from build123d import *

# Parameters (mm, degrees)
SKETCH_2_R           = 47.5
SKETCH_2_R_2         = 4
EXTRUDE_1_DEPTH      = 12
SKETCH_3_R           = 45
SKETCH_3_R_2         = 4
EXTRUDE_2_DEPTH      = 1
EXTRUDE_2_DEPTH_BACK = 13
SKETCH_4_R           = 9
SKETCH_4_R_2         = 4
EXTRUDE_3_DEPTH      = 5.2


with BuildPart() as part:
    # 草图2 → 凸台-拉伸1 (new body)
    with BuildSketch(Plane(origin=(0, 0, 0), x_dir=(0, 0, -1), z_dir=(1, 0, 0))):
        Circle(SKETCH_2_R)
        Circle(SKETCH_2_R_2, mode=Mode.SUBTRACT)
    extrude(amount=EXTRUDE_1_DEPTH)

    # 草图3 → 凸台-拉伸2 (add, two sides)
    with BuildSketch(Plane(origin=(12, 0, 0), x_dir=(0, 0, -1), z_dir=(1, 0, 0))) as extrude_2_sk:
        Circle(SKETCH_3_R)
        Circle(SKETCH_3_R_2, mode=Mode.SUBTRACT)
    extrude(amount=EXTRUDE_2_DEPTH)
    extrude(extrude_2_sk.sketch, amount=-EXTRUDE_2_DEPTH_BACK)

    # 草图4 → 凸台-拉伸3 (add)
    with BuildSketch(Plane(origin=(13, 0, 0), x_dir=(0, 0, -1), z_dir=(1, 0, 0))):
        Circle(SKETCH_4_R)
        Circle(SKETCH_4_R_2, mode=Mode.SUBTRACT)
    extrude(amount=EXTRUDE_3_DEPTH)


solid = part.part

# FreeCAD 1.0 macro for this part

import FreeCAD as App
import Part
import Sketcher
from FreeCAD import Vector
Q = App.Units.Quantity

doc = App.newDocument("Part")
body = doc.addObject("PartDesign::Body", "Body")

sketch1 = doc.addObject("Sketcher::SketchObject", "Sketch")
body.addObject(sketch1)
sketch1.AttachmentSupport = (doc.YZ_Plane, [""])
sketch1.MapMode = "FlatFace"
sketch1.addGeometry([
    Part.Circle(Vector(0, 0, 0), Vector(0, 0, 1), 47.5),
    Part.Circle(Vector(0, 0, 0), Vector(0, 0, 1), 4),
], False)
sketch1.addConstraint([
    Sketcher.Constraint("Coincident", 0, 3, -1, 1),
    Sketcher.Constraint("Coincident", 1, 3, -1, 1),
    Sketcher.Constraint("Diameter", 0, Q("95 mm")),
    Sketcher.Constraint("Diameter", 1, Q("8 mm")),
])
pad1 = doc.addObject("PartDesign::Pad", "Pad")
body.addObject(pad1)
pad1.Profile = sketch1
pad1.Length = 12

sketch2 = doc.addObject("Sketcher::SketchObject", "Sketch001")
body.addObject(sketch2)
sketch2.AttachmentSupport = (doc.YZ_Plane, [""])
sketch2.MapMode = "FlatFace"
sketch2.AttachmentOffset = App.Placement(Vector(0, 0, 12), App.Rotation())
sketch2.addGeometry([
    Part.Circle(Vector(0, 0, 0), Vector(0, 0, 1), 45),
    Part.Circle(Vector(0, 0, 0), Vector(0, 0, 1), 4),
], False)
sketch2.addConstraint([
    Sketcher.Constraint("Coincident", 0, 3, -1, 1),
    Sketcher.Constraint("Coincident", 1, 3, -1, 1),
    Sketcher.Constraint("Diameter", 0, Q("90 mm")),
    Sketcher.Constraint("Diameter", 1, Q("8 mm")),
])
pad2 = doc.addObject("PartDesign::Pad", "Pad001")
body.addObject(pad2)
pad2.Profile = sketch2
pad2.Type = "TwoLengths"
pad2.Length = 1
pad2.Length2 = 13

sketch3 = doc.addObject("Sketcher::SketchObject", "Sketch002")
body.addObject(sketch3)
sketch3.AttachmentSupport = (doc.YZ_Plane, [""])
sketch3.MapMode = "FlatFace"
sketch3.AttachmentOffset = App.Placement(Vector(0, 0, 13), App.Rotation())
sketch3.addGeometry([
    Part.Circle(Vector(0, 0, 0), Vector(0, 0, 1), 9),
    Part.Circle(Vector(0, 0, 0), Vector(0, 0, 1), 4),
], False)
sketch3.addConstraint([
    Sketcher.Constraint("Coincident", 0, 3, -1, 1),
    Sketcher.Constraint("Coincident", 1, 3, -1, 1),
    Sketcher.Constraint("Diameter", 0, Q("18 mm")),
    Sketcher.Constraint("Diameter", 1, Q("8 mm")),
])
pad3 = doc.addObject("PartDesign::Pad", "Pad002")
body.addObject(pad3)
pad3.Profile = sketch3
pad3.Length = 5.2

doc.recompute()
